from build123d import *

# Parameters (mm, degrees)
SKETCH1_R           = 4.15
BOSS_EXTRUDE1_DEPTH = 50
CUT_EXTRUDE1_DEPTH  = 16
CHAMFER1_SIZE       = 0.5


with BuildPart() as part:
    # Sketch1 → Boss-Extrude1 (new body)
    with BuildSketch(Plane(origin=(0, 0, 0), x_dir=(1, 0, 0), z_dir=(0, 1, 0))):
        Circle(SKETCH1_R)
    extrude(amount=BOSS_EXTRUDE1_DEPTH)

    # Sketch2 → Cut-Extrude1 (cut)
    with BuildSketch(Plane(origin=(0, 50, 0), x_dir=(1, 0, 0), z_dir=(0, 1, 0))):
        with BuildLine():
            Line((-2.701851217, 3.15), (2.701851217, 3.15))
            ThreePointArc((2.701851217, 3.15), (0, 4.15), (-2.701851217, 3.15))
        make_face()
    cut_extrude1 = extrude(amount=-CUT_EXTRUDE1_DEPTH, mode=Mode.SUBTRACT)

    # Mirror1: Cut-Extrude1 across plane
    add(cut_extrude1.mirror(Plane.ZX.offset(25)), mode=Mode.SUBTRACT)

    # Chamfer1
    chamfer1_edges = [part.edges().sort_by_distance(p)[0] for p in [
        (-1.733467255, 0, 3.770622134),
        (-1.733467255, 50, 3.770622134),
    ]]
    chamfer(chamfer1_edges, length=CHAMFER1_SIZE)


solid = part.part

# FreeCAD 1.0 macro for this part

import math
import FreeCAD as App
import Part
import Sketcher
Q = App.Units.Quantity


def edges_at(feature, points):
    """Names of the edges that pass closest to the given points."""
    edges = feature.Shape.Edges
    near = lambda p: min(range(len(edges)), key=lambda i: edges[i].distToShape(Part.Vertex(*p))[0])
    return sorted({f"Edge{near(p) + 1}" for p in points})

doc = App.newDocument("Part")
body = doc.addObject("PartDesign::Body", "Body")

# Sketch on XZ plane
sketch1 = body.newObject("Sketcher::SketchObject", "Sketch")
sketch1.AttachmentSupport = (doc.getObject("XZ_Plane"), [""])
sketch1.MapMode = "FlatFace"
sketch1.addGeometry(Part.Circle(App.Vector(0, 0, 0), App.Vector(0, 0, 1), 4.2), False)
sketch1.addConstraint([
    Sketcher.Constraint("Coincident", 0, 3, -1, 1),
    Sketcher.Constraint("Diameter", 0, Q("8.3 mm")),
])
pad1 = body.newObject("PartDesign::Pad", "Pad")
pad1.Profile = sketch1
pad1.Length = 50
pad1.Reversed = True

# Sketch on XZ plane
sketch2 = body.newObject("Sketcher::SketchObject", "Sketch001")
sketch2.AttachmentSupport = (doc.getObject("XZ_Plane"), [""])
sketch2.MapMode = "FlatFace"
sketch2.AttachmentOffset = App.Placement(App.Vector(0, 0, -50), App.Rotation())
sketch2.addGeometry([
    Part.LineSegment(App.Vector(-2.7, -3.1, 0), App.Vector(2.7, -3.1, 0)),
    Part.ArcOfCircle(Part.Circle(App.Vector(0, 0, 0), App.Vector(0, 0, 1), 4.1), math.radians(-131), math.radians(-49)),
], False)
sketch2.addConstraint([
    Sketcher.Constraint("Coincident", 0, 1, 1, 1),
    Sketcher.Constraint("Coincident", 1, 2, 0, 2),
    Sketcher.Constraint("Horizontal", 0),
    Sketcher.Constraint("Coincident", 1, 3, -1, 1),
    Sketcher.Constraint("Radius", 1, Q("4.15 mm")),
    Sketcher.Constraint("DistanceY", 0, 1, -1, 1, Q("3.15 mm")),
])
pocket1 = body.newObject("PartDesign::Pocket", "Pocket")
pocket1.Profile = sketch2
pocket1.Length = 16
pocket1.Reversed = True
doc.recompute()

datumplane = body.newObject("PartDesign::Plane", "DatumPlane")
datumplane.AttachmentSupport = (doc.getObject("XZ_Plane"), [""])
datumplane.MapMode = "FlatFace"
datumplane.AttachmentOffset = App.Placement(App.Vector(0, 0, -25), App.Rotation())
mirrored = body.newObject("PartDesign::Mirrored", "Mirrored")
mirrored.Originals = [pocket1]
mirrored.MirrorPlane = (datumplane, [""])
body.Tip = mirrored
doc.recompute()

chamfer = body.newObject("PartDesign::Chamfer", "Chamfer")
chamfer.Base = (mirrored, edges_at(mirrored, [(-1.733, 0, 3.771), (-1.733, 50, 3.771)]))
chamfer.Size = 0.5

doc.recompute()
